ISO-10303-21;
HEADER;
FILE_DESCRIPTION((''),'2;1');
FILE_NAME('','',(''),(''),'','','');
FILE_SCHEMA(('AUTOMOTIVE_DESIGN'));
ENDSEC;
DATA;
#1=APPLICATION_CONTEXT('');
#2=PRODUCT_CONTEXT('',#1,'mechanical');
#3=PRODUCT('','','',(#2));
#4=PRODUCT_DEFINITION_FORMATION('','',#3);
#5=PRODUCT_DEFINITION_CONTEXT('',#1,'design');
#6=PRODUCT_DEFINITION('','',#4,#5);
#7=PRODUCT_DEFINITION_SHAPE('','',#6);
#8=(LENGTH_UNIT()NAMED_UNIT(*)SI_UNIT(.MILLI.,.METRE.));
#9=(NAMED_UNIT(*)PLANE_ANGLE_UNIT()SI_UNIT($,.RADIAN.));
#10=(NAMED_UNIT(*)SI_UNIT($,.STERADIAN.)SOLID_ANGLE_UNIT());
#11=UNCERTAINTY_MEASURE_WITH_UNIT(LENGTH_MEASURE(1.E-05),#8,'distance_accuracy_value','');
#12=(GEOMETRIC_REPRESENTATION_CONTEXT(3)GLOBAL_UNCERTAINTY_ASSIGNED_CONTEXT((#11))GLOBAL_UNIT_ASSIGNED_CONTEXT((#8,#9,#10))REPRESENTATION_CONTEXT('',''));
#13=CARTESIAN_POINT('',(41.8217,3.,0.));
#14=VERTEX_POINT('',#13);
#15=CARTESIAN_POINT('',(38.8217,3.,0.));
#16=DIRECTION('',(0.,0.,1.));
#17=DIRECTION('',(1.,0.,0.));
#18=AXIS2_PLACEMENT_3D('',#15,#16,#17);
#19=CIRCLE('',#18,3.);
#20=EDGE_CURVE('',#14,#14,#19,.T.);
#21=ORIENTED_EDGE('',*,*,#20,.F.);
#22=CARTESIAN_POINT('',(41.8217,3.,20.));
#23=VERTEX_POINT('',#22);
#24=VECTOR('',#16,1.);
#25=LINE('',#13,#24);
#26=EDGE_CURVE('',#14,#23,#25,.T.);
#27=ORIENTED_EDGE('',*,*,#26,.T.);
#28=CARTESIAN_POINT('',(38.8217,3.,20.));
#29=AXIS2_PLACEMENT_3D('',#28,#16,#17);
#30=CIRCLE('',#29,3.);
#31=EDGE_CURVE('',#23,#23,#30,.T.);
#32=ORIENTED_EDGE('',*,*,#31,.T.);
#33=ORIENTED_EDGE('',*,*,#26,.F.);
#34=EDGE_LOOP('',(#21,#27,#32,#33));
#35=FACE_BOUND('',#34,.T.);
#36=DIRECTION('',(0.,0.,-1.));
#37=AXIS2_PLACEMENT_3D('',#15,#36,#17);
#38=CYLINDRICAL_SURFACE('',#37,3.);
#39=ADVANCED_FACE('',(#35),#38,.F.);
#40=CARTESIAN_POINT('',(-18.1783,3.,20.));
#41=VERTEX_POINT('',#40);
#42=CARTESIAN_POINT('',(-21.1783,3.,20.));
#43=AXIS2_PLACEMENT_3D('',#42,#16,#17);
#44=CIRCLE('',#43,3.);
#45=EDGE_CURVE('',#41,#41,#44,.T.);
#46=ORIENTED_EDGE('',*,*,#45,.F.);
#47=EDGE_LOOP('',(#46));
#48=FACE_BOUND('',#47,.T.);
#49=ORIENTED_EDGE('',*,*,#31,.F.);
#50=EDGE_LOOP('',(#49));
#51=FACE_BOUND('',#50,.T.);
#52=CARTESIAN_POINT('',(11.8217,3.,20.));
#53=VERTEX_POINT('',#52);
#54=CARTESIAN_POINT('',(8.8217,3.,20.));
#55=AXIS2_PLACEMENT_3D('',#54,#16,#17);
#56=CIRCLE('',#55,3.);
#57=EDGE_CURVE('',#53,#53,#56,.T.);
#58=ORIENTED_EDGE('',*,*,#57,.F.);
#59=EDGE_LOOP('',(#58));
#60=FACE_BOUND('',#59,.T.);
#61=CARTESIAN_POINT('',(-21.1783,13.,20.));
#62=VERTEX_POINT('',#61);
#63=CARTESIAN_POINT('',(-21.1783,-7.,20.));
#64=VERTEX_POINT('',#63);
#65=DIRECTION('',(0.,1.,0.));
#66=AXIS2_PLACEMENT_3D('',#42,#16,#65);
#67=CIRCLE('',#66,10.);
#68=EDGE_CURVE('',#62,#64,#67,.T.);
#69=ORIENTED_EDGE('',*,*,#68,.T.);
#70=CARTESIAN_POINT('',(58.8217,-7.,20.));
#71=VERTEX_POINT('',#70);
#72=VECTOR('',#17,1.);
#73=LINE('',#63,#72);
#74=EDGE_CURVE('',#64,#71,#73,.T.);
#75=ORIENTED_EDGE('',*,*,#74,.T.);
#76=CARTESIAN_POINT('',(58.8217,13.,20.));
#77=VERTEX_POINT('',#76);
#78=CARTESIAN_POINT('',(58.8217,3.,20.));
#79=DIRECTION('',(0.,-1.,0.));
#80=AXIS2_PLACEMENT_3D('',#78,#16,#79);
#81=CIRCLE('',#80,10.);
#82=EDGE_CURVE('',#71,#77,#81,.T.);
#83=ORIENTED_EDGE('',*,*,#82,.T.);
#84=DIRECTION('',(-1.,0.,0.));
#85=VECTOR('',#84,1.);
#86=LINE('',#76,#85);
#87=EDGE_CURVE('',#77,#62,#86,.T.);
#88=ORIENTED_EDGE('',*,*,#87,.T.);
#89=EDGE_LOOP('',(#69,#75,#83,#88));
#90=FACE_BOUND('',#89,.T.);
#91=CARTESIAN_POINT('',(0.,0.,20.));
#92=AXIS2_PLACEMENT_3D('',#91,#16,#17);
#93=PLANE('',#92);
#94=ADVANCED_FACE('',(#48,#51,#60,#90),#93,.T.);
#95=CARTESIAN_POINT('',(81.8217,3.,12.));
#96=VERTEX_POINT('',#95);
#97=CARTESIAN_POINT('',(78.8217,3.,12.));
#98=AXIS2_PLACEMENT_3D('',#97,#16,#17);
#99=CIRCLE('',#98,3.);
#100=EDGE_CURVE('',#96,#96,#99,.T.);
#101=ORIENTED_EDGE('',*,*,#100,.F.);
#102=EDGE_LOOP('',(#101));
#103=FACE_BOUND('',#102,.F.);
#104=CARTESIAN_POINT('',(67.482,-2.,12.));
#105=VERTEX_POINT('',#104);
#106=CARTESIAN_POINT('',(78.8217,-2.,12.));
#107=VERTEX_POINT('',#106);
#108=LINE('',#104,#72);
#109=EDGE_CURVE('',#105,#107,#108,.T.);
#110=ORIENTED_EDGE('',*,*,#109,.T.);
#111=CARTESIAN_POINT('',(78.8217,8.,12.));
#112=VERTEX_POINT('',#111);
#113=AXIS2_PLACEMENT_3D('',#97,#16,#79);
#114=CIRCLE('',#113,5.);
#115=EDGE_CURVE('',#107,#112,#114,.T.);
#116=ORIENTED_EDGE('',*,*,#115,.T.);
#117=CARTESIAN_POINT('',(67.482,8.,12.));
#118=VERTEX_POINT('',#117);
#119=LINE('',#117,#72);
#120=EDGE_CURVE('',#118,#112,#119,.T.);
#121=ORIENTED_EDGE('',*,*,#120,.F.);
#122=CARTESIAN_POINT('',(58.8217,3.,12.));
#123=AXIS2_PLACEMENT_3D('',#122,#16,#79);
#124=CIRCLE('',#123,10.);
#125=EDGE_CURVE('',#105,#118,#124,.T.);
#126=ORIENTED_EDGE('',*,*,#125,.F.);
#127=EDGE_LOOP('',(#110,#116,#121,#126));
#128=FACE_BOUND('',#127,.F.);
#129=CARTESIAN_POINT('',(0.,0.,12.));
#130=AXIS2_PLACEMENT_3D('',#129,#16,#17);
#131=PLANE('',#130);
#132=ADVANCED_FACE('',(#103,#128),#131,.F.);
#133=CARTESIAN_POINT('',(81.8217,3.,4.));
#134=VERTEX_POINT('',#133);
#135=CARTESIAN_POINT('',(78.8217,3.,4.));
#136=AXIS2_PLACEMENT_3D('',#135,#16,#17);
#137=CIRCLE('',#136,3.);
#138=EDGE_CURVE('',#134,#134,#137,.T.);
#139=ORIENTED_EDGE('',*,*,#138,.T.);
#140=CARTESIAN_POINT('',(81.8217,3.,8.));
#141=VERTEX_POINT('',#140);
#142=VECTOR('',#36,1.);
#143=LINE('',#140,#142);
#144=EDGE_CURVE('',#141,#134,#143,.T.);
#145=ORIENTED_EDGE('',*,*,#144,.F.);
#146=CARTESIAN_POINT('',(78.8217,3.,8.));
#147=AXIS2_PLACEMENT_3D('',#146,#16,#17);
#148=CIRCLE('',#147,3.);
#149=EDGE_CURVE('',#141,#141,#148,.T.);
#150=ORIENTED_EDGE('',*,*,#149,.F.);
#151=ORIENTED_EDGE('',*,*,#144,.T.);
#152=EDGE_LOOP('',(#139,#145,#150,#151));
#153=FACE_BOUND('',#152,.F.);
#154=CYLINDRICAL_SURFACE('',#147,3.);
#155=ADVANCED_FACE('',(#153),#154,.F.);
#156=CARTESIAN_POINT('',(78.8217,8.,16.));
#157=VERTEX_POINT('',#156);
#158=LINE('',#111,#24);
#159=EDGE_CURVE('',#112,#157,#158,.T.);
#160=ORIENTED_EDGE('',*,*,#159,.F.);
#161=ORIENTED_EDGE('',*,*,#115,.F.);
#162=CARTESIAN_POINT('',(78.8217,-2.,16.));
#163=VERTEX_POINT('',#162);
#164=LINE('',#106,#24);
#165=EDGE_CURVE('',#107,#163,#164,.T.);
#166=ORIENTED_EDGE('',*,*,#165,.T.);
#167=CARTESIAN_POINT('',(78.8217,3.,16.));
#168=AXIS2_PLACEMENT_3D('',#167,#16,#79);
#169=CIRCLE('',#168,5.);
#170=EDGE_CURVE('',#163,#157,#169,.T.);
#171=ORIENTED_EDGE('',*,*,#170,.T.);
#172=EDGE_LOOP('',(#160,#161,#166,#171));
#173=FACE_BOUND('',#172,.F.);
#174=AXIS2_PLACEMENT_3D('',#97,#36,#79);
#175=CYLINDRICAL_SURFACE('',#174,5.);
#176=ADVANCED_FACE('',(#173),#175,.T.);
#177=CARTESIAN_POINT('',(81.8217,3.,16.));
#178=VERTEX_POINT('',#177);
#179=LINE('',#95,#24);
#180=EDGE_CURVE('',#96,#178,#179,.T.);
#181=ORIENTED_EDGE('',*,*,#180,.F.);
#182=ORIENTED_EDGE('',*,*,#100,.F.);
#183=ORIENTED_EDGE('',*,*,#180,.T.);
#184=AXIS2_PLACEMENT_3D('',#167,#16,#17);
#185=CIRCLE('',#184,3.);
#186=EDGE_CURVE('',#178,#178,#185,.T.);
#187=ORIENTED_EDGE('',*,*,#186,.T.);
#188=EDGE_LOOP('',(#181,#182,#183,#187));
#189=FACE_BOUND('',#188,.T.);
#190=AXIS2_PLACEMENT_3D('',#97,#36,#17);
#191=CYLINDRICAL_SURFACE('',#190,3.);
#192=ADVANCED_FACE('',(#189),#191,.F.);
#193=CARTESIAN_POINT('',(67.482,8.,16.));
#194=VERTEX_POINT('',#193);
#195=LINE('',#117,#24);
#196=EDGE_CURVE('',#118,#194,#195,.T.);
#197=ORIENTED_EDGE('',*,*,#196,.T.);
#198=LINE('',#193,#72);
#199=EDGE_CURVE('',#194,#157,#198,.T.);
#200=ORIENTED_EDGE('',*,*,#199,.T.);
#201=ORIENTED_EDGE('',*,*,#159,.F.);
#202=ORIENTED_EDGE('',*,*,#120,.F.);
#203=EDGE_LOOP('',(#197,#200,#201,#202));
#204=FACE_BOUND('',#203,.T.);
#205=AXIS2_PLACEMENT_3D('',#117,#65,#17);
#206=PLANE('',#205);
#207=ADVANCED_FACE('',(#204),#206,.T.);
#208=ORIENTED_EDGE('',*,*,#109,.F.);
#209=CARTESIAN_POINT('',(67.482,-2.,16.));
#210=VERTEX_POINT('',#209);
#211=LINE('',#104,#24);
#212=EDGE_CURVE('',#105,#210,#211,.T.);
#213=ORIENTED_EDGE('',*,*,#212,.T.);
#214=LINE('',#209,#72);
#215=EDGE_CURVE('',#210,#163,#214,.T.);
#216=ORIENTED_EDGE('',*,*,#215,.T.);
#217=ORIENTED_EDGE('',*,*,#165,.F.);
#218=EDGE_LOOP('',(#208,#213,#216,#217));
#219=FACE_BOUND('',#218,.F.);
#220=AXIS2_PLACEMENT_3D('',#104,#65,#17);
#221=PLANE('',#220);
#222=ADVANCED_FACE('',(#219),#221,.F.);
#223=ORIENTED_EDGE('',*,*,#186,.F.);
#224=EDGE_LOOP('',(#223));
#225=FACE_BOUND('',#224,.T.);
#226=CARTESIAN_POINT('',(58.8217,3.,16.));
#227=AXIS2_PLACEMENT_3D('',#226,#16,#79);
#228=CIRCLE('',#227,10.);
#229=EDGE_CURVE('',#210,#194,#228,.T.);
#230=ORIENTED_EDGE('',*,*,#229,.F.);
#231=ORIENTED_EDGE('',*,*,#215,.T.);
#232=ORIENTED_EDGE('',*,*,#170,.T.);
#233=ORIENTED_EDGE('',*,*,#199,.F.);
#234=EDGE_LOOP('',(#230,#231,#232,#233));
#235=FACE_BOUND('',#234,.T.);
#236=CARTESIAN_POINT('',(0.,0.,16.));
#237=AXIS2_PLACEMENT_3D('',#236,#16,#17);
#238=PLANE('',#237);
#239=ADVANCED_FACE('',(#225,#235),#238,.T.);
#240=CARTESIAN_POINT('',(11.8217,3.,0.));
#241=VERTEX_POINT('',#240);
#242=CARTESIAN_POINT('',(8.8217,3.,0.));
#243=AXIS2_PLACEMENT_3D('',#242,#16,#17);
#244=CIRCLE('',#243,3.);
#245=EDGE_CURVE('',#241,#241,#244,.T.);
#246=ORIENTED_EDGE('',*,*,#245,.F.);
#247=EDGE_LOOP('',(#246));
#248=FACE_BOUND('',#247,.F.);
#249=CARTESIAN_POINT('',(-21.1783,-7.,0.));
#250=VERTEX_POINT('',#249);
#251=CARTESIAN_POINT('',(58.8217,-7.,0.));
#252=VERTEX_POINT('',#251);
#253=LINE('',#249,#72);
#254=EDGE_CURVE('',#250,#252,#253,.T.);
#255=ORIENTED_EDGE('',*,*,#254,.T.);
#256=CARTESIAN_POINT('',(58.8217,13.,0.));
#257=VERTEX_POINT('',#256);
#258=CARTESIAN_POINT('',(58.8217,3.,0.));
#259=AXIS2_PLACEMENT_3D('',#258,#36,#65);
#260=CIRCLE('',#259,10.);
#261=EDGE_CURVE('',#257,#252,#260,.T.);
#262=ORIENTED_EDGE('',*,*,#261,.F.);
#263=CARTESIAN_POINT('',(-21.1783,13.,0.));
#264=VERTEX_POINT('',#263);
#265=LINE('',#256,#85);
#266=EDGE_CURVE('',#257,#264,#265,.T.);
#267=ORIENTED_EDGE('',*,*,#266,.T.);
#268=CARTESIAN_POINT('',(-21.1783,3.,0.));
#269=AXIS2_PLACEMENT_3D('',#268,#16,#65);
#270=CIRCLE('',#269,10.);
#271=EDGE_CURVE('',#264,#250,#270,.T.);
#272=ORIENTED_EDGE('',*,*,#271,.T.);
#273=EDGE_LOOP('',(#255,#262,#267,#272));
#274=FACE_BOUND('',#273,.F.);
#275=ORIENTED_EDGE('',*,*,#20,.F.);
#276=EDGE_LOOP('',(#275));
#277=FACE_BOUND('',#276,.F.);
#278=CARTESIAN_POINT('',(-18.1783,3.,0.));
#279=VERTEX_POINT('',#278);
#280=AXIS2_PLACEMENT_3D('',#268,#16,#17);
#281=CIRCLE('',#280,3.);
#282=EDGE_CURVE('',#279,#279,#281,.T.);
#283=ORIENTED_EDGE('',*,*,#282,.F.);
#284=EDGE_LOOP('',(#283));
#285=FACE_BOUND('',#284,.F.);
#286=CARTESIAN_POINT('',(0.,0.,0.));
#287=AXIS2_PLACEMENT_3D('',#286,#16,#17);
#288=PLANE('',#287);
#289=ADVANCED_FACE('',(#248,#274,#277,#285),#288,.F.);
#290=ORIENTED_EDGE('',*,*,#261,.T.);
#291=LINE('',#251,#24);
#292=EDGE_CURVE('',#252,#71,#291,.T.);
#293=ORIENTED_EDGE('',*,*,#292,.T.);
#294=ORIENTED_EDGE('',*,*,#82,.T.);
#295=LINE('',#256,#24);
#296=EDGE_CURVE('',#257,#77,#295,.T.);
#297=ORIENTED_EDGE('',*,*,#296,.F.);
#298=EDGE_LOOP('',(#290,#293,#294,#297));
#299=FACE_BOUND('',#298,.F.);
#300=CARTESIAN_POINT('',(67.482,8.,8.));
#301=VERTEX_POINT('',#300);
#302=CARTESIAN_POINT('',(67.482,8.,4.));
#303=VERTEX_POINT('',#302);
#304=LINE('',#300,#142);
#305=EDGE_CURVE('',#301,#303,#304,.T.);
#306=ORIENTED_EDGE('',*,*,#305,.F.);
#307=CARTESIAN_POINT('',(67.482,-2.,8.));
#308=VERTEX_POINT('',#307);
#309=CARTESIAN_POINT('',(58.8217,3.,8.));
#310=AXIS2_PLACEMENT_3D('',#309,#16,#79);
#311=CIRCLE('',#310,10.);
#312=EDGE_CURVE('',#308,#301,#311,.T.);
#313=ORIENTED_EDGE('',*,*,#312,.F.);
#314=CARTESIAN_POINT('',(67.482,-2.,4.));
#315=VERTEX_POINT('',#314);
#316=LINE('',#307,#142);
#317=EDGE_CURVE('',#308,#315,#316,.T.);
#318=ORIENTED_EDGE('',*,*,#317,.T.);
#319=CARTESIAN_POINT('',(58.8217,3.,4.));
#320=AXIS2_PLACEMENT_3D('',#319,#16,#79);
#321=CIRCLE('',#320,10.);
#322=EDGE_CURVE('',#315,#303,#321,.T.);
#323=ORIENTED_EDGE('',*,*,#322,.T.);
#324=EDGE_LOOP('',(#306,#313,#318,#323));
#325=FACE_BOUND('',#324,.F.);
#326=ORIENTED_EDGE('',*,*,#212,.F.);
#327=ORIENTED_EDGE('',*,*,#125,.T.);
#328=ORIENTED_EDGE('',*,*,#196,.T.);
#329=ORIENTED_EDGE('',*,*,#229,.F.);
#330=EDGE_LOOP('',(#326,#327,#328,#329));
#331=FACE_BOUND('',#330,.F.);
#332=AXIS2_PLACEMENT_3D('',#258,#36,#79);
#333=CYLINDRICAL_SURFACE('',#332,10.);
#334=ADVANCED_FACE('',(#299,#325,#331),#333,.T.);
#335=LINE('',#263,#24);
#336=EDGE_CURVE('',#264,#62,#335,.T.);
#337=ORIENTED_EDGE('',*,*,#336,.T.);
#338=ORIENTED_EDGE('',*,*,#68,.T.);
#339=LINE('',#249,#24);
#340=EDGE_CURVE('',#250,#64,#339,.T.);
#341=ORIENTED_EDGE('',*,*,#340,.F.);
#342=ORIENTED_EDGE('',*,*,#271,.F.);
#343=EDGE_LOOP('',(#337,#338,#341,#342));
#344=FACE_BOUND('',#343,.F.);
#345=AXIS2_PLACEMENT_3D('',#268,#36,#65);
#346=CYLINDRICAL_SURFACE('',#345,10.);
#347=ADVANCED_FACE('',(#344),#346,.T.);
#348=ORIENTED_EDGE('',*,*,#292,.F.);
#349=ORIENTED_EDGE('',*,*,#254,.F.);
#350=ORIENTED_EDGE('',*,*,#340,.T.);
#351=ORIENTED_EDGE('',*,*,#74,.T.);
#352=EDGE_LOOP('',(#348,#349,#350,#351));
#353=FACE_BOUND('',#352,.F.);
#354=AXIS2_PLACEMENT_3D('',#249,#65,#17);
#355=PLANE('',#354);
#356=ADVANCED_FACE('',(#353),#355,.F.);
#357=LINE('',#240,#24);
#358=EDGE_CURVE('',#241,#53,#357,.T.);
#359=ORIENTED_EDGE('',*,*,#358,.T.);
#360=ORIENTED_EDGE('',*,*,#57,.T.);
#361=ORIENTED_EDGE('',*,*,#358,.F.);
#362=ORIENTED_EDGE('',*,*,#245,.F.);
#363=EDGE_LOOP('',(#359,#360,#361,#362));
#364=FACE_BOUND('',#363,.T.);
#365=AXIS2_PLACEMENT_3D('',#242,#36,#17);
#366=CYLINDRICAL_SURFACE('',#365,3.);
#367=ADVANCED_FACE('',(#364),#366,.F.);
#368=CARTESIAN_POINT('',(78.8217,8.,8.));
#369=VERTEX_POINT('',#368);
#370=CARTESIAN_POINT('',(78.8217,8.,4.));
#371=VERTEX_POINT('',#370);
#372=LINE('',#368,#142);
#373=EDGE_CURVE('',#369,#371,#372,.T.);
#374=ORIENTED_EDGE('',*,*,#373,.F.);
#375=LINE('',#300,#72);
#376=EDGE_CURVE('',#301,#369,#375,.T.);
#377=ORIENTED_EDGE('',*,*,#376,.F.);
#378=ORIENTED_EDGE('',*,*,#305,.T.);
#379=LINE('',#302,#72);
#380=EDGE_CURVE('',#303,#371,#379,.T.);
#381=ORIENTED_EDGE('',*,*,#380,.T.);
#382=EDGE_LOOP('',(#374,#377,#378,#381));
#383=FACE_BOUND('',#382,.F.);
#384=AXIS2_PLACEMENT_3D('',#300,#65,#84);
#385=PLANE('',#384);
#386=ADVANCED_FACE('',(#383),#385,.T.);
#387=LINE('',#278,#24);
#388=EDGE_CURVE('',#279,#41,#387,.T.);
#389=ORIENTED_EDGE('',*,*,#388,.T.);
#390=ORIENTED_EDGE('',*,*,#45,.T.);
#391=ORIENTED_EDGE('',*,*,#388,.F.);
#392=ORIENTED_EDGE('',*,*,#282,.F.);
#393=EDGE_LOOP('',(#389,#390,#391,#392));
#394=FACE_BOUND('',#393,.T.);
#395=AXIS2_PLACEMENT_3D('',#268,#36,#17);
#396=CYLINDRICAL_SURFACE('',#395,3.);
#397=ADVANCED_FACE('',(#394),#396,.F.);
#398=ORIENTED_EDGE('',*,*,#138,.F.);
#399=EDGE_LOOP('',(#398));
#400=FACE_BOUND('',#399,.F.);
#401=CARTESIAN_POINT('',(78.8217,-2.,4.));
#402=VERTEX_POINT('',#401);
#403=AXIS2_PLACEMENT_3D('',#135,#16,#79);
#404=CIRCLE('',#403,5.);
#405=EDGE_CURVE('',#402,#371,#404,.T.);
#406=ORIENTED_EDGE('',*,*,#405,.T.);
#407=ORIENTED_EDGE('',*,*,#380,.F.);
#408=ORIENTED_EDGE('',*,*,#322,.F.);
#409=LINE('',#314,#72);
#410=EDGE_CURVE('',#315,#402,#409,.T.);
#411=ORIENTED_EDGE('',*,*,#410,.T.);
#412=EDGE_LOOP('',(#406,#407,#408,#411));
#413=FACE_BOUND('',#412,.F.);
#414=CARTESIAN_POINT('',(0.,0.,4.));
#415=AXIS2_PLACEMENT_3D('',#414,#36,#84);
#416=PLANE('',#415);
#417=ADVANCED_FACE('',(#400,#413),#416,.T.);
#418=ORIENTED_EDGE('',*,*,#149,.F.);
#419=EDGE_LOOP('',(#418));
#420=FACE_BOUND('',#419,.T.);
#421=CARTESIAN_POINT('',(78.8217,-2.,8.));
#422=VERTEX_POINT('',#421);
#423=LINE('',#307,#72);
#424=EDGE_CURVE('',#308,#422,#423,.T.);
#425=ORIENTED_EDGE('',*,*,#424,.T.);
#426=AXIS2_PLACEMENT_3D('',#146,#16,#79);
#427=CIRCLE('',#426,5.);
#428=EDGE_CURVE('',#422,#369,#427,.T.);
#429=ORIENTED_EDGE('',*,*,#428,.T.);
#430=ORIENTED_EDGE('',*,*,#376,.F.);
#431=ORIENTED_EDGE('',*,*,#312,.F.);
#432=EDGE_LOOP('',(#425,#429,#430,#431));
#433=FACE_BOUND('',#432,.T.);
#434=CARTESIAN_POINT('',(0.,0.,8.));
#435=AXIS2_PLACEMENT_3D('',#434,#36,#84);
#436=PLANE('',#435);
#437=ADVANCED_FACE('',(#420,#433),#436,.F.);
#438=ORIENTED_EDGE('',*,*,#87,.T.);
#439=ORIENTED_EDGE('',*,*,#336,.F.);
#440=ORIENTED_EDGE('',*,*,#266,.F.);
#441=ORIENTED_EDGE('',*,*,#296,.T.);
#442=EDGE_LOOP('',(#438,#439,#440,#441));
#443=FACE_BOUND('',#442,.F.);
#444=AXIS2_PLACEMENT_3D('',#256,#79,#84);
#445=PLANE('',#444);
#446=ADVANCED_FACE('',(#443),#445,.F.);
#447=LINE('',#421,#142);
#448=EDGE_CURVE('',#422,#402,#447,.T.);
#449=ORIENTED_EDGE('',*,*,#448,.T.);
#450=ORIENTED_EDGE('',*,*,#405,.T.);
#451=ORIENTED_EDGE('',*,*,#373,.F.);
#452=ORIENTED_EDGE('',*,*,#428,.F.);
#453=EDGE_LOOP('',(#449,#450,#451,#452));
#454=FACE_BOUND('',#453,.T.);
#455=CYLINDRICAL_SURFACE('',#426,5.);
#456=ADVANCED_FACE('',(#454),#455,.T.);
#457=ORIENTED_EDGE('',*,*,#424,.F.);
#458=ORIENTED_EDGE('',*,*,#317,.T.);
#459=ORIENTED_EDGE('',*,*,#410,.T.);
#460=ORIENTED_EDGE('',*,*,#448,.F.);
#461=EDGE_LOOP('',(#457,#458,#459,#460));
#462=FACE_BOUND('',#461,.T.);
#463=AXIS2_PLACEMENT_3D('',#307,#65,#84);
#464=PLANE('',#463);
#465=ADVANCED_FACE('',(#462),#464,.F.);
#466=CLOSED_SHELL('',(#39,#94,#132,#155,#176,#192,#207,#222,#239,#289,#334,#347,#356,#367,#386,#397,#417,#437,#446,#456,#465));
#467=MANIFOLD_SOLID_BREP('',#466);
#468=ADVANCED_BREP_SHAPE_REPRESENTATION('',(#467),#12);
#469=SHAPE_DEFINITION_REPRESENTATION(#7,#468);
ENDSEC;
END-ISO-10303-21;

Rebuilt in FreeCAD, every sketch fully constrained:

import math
import FreeCAD as App
import Part
import Sketcher
from FreeCAD import Vector

doc = App.newDocument("Part")
params = doc.addObject("Spreadsheet::Sheet", "Params")
for row, (alias, value) in enumerate([
    ("sketch1_diameter", "6 mm"),
    ("sketch1_radius", "10 mm"),
    ("pad1_length", "20 mm"),
    ("sketch2_diameter", "6 mm"),
    ("sketch2_radius", "10 mm"),
    ("sketch2_radius2", "5 mm"),
    ("pad2_length", "4 mm"),
], start=1):
    params.set(f"A{row}", alias)
    params.set(f"B{row}", "=" + value)
    params.setAlias(f"B{row}", alias)

body = doc.addObject("PartDesign::Body", "Body")

# Sketch on XY plane
sketch1 = body.newObject("Sketcher::SketchObject", "Sketch")
sketch1.AttachmentSupport = (doc.getObject("XY_Plane"), [""])
sketch1.MapMode = "FlatFace"
sketch1.addGeometry([
    Part.ArcOfCircle(Part.Circle(Vector(-21.2, 3, 0), Vector(0, 0, 1), 10), math.radians(90), math.radians(270)),  # 0
    Part.LineSegment(Vector(-21.2, -7, 0), Vector(58.8, -7, 0)),  # 1
    Part.ArcOfCircle(Part.Circle(Vector(58.8, 3, 0), Vector(0, 0, 1), 10), math.radians(-90), math.radians(90)),  # 2
    Part.LineSegment(Vector(58.8, 13, 0), Vector(-21.2, 13, 0)),  # 3
    Part.Circle(Vector(-21.2, 3, 0), Vector(0, 0, 1), 3),  # 4
    Part.Circle(Vector(8.8, 3, 0), Vector(0, 0, 1), 3),  # 5
    Part.Circle(Vector(38.8, 3, 0), Vector(0, 0, 1), 3),  # 6
], False)
sketch1.addConstraint([
    Sketcher.Constraint("Tangent", 0, 2, 1, 1),
    Sketcher.Constraint("Tangent", 1, 2, 2, 1),
    Sketcher.Constraint("Tangent", 2, 2, 3, 1),
    Sketcher.Constraint("Tangent", 3, 2, 0, 1),
    Sketcher.Constraint("Horizontal", 1),
    Sketcher.Constraint("Horizontal", 3),
    Sketcher.Constraint("Coincident", 4, 3, 0, 3),
    Sketcher.Constraint("Equal", 4, 5),
    Sketcher.Constraint("Equal", 5, 6),
    Sketcher.Constraint("Horizontal", 4, 3, 5, 3),
    Sketcher.Constraint("Horizontal", 5, 3, 6, 3),
    Sketcher.Constraint("Diameter", 4, 6.0),
    Sketcher.Constraint("Radius", 0, 10.0),
    Sketcher.Constraint("DistanceX", 0, 3, 5, 3, 30.0),
    Sketcher.Constraint("DistanceX", 6, 3, 2, 3, 20.0),
    Sketcher.Constraint("DistanceX", 5, 3, 6, 3, 30.0),
    Sketcher.Constraint("DistanceY", -1, 1, 0, 3, 3.0),
    Sketcher.Constraint("DistanceX", 0, 3, -1, 1, 21.1783),
])
sketch1.setExpression("Constraints[11]", "Params.sketch1_diameter")
sketch1.setExpression("Constraints[12]", "Params.sketch1_radius")
pad1 = body.newObject("PartDesign::Pad", "Pad")
pad1.Profile = sketch1
pad1.setExpression("Length", "Params.pad1_length")

# Sketch on XY plane
sketch2 = body.newObject("Sketcher::SketchObject", "Sketch001")
sketch2.AttachmentSupport = (doc.getObject("XY_Plane"), [""])
sketch2.MapMode = "FlatFace"
sketch2.AttachmentOffset = App.Placement(Vector(0, 0, 12), App.Rotation())
sketch2.addGeometry([
    Part.LineSegment(Vector(78.8, 8, 0), Vector(67.5, 8, 0)),  # 0
    Part.ArcOfCircle(Part.Circle(Vector(58.8, 3, 0), Vector(0, 0, 1), 10), math.radians(-30), math.radians(30)),  # 1
    Part.LineSegment(Vector(67.5, -2, 0), Vector(78.8, -2, 0)),  # 2
    Part.ArcOfCircle(Part.Circle(Vector(78.8, 3, 0), Vector(0, 0, 1), 5), math.radians(-90), math.radians(90)),  # 3
    Part.Circle(Vector(78.8, 3, 0), Vector(0, 0, 1), 3),  # 4
], False)
sketch2.addConstraint([
    Sketcher.Constraint("Coincident", 0, 2, 1, 2),
    Sketcher.Constraint("Coincident", 1, 1, 2, 1),
    Sketcher.Constraint("Tangent", 2, 2, 3, 1),
    Sketcher.Constraint("Tangent", 3, 2, 0, 1),
    Sketcher.Constraint("Horizontal", 0),
    Sketcher.Constraint("Horizontal", 2),
    Sketcher.Constraint("Coincident", 4, 3, 3, 3),
    Sketcher.Constraint("Horizontal", 1, 3, 3, 3),
    Sketcher.Constraint("Diameter", 4, 6.0),
    Sketcher.Constraint("Radius", 1, 10.0),
    Sketcher.Constraint("Radius", 3, 5.0),
    Sketcher.Constraint("DistanceY", -1, 1, 1, 3, 3.0),
    Sketcher.Constraint("DistanceX", 1, 3, 3, 3, 20.0),
    Sketcher.Constraint("DistanceX", -1, 1, 0, 2, 67.482),
])
sketch2.setExpression("Constraints[8]", "Params.sketch2_diameter")
sketch2.setExpression("Constraints[9]", "Params.sketch2_radius")
sketch2.setExpression("Constraints[10]", "Params.sketch2_radius2")
pad2 = body.newObject("PartDesign::Pad", "Pad001")
pad2.Profile = sketch2
pad2.setExpression("Length", "Params.pad2_length")
doc.recompute()

datumplane = body.newObject("PartDesign::Plane", "DatumPlane")
datumplane.AttachmentSupport = (doc.getObject("XY_Plane"), [""])
datumplane.MapMode = "FlatFace"
datumplane.AttachmentOffset = App.Placement(Vector(0, 0, 10), App.Rotation())
mirrored = body.newObject("PartDesign::Mirrored", "Mirrored")
mirrored.Originals = [pad2]
mirrored.MirrorPlane = (datumplane, [""])
body.Tip = mirrored

doc.recompute()
